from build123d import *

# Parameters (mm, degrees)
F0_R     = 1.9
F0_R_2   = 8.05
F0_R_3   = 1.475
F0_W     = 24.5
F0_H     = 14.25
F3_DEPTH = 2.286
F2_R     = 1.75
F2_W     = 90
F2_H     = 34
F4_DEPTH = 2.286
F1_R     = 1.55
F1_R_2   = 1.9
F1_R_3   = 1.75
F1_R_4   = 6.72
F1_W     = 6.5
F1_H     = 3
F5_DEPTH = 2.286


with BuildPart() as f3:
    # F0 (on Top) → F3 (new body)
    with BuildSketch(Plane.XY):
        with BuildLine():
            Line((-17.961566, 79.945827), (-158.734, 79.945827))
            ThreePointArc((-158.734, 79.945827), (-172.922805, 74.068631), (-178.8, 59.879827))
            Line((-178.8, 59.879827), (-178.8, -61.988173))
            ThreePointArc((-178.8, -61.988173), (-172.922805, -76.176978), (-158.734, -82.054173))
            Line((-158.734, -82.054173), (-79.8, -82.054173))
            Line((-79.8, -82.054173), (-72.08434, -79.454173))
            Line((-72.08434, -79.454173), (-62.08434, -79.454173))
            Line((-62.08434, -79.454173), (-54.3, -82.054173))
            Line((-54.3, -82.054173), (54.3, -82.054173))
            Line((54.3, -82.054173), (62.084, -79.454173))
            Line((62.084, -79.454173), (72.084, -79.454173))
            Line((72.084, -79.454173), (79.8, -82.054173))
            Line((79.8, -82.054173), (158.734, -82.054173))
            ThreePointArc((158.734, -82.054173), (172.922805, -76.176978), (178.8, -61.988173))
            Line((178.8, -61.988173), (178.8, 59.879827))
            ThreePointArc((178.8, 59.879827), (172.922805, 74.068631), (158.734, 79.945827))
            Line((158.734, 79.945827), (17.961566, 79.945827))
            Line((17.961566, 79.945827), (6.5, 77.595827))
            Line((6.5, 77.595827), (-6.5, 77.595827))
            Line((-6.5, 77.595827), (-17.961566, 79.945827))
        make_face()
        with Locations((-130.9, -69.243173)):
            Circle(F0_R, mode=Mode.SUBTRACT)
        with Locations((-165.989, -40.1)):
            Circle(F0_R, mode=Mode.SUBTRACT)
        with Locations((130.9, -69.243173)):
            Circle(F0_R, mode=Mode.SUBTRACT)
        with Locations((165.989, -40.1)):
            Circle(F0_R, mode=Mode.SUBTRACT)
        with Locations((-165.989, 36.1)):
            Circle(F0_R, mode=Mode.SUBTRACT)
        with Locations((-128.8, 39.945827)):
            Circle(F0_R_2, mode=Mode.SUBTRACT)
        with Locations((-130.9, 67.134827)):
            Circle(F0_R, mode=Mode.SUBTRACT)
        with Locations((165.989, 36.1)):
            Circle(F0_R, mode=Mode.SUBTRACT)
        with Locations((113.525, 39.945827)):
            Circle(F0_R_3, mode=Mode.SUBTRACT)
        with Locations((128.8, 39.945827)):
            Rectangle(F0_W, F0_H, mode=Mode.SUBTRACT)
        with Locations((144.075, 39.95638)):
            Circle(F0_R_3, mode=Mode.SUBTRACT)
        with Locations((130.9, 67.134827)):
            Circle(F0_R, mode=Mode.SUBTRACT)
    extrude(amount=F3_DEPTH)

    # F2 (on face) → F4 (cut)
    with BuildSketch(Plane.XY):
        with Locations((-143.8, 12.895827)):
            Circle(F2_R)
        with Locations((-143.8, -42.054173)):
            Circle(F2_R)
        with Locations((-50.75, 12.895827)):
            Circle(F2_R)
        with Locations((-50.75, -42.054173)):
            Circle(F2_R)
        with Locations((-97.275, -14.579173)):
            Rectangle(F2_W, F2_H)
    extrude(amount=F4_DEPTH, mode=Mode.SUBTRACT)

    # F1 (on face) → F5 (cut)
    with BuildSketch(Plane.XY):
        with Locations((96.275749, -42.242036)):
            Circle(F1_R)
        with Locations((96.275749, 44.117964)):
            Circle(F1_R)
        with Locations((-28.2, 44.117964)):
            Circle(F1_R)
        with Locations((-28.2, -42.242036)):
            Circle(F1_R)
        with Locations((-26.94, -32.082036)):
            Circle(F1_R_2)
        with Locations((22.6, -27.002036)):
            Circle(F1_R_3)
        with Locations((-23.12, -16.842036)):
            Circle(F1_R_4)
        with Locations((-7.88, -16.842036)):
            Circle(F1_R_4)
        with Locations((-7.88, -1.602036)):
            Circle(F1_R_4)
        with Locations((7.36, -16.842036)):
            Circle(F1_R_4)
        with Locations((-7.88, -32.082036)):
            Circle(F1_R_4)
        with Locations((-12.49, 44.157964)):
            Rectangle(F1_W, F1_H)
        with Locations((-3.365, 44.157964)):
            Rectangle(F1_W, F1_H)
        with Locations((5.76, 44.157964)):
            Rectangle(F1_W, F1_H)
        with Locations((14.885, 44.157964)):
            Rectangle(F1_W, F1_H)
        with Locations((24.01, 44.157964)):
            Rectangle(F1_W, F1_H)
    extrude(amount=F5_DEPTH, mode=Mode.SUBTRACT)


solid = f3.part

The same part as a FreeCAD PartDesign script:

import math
import FreeCAD as App
import Part
import Sketcher

V = App.Vector
Q = App.Units.Quantity


def add_polygon(sketch, points):
    """Adds a closed chain of lines whose ends are joined by coincident constraints."""
    first, n = sketch.GeometryCount, len(points)
    for a, b in zip(points, points[1:] + points[:1]):
        sketch.addGeometry(Part.LineSegment(App.Vector(*a, 0), App.Vector(*b, 0)), False)
    for i in range(n):
        sketch.addConstraint(Sketcher.Constraint("Coincident", first + i, 2, first + (i + 1) % n, 1))

doc = App.newDocument("Part")
body = doc.addObject("PartDesign::Body", "Body")

sketch1 = body.newObject("Sketcher::SketchObject", "Sketch")
sketch1.AttachmentSupport = (doc.getObject("XY_Plane"), [""])
sketch1.MapMode = "FlatFace"
sketch1.addGeometry(Part.LineSegment(V(-18, 79.9, 0), V(-158.7, 79.9, 0)), False)
sketch1.addGeometry(Part.ArcOfCircle(Part.Circle(V(-158.7, 59.9, 0), V(0, 0, 1), 20.1), math.radians(90), math.radians(180)), False)
sketch1.addGeometry(Part.LineSegment(V(-178.8, 59.9, 0), V(-178.8, -62, 0)), False)
sketch1.addGeometry(Part.ArcOfCircle(Part.Circle(V(-158.7, -62, 0), V(0, 0, 1), 20.1), math.radians(180), math.radians(270)), False)
sketch1.addGeometry(Part.LineSegment(V(-158.7, -82.1, 0), V(-79.8, -82.1, 0)), False)
sketch1.addGeometry(Part.LineSegment(V(-79.8, -82.1, 0), V(-72.1, -79.5, 0)), False)
sketch1.addGeometry(Part.LineSegment(V(-72.1, -79.5, 0), V(-62.1, -79.5, 0)), False)
sketch1.addGeometry(Part.LineSegment(V(-62.1, -79.5, 0), V(-54.3, -82.1, 0)), False)
sketch1.addGeometry(Part.LineSegment(V(-54.3, -82.1, 0), V(54.3, -82.1, 0)), False)
sketch1.addGeometry(Part.LineSegment(V(54.3, -82.1, 0), V(62.1, -79.5, 0)), False)
sketch1.addGeometry(Part.LineSegment(V(62.1, -79.5, 0), V(72.1, -79.5, 0)), False)
sketch1.addGeometry(Part.LineSegment(V(72.1, -79.5, 0), V(79.8, -82.1, 0)), False)
sketch1.addGeometry(Part.LineSegment(V(79.8, -82.1, 0), V(158.7, -82.1, 0)), False)
sketch1.addGeometry(Part.ArcOfCircle(Part.Circle(V(158.7, -62, 0), V(0, 0, 1), 20.1), math.radians(-90), math.radians(0)), False)
sketch1.addGeometry(Part.LineSegment(V(178.8, -62, 0), V(178.8, 59.9, 0)), False)
sketch1.addGeometry(Part.ArcOfCircle(Part.Circle(V(158.7, 59.9, 0), V(0, 0, 1), 20.1), math.radians(0), math.radians(90)), False)
sketch1.addGeometry(Part.LineSegment(V(158.7, 79.9, 0), V(18, 79.9, 0)), False)
sketch1.addGeometry(Part.LineSegment(V(18, 79.9, 0), V(6.5, 77.6, 0)), False)
sketch1.addGeometry(Part.LineSegment(V(6.5, 77.6, 0), V(-6.5, 77.6, 0)), False)
sketch1.addGeometry(Part.LineSegment(V(-6.5, 77.6, 0), V(-18, 79.9, 0)), False)
sketch1.addGeometry(Part.Circle(V(-130.9, -69.2, 0), V(0, 0, 1), 1.9), False)
sketch1.addGeometry(Part.Circle(V(-166, -40.1, 0), V(0, 0, 1), 1.9), False)
sketch1.addGeometry(Part.Circle(V(130.9, -69.2, 0), V(0, 0, 1), 1.9), False)
sketch1.addGeometry(Part.Circle(V(166, -40.1, 0), V(0, 0, 1), 1.9), False)
sketch1.addGeometry(Part.Circle(V(-166, 36.1, 0), V(0, 0, 1), 1.9), False)
sketch1.addGeometry(Part.Circle(V(-128.8, 39.9, 0), V(0, 0, 1), 8.1), False)
sketch1.addGeometry(Part.Circle(V(-130.9, 67.1, 0), V(0, 0, 1), 1.9), False)
sketch1.addGeometry(Part.Circle(V(113.5, 39.9, 0), V(0, 0, 1), 1.5), False)
add_polygon(sketch1, [(141.1, 32.8), (116.5, 32.8), (116.5, 47.1), (141.1, 47.1)])
sketch1.addGeometry(Part.Circle(V(144.1, 40, 0), V(0, 0, 1), 1.5), False)
sketch1.addGeometry(Part.Circle(V(166, 36.1, 0), V(0, 0, 1), 1.9), False)
sketch1.addGeometry(Part.Circle(V(130.9, 67.1, 0), V(0, 0, 1), 1.9), False)
sketch1.addConstraint([
    Sketcher.Constraint("Tangent", 0, 2, 1, 1),
    Sketcher.Constraint("Tangent", 1, 2, 2, 1),
    Sketcher.Constraint("Tangent", 2, 2, 3, 1),
    Sketcher.Constraint("Tangent", 3, 2, 4, 1),
    Sketcher.Constraint("Coincident", 4, 2, 5, 1),
    Sketcher.Constraint("Coincident", 5, 2, 6, 1),
    Sketcher.Constraint("Coincident", 6, 2, 7, 1),
    Sketcher.Constraint("Coincident", 7, 2, 8, 1),
    Sketcher.Constraint("Coincident", 8, 2, 9, 1),
    Sketcher.Constraint("Coincident", 9, 2, 10, 1),
    Sketcher.Constraint("Coincident", 10, 2, 11, 1),
    Sketcher.Constraint("Coincident", 11, 2, 12, 1),
    Sketcher.Constraint("Tangent", 12, 2, 13, 1),
    Sketcher.Constraint("Tangent", 13, 2, 14, 1),
    Sketcher.Constraint("Tangent", 14, 2, 15, 1),
    Sketcher.Constraint("Tangent", 15, 2, 16, 1),
    Sketcher.Constraint("Coincident", 16, 2, 17, 1),
    Sketcher.Constraint("Coincident", 17, 2, 18, 1),
    Sketcher.Constraint("Coincident", 18, 2, 19, 1),
    Sketcher.Constraint("Coincident", 19, 2, 0, 1),
    Sketcher.Constraint("Horizontal", 0),
    Sketcher.Constraint("Vertical", 2),
    Sketcher.Constraint("Horizontal", 4),
    Sketcher.Constraint("Horizontal", 6),
    Sketcher.Constraint("Horizontal", 8),
    Sketcher.Constraint("Horizontal", 10),
    Sketcher.Constraint("Horizontal", 12),
    Sketcher.Constraint("Vertical", 14),
    Sketcher.Constraint("Horizontal", 16),
    Sketcher.Constraint("Horizontal", 18),
    Sketcher.Constraint("Horizontal", 28),
    Sketcher.Constraint("Vertical", 29),
    Sketcher.Constraint("Horizontal", 30),
    Sketcher.Constraint("Vertical", 31),
    Sketcher.Constraint("Equal", 1, 3),
    Sketcher.Constraint("Equal", 3, 13),
    Sketcher.Constraint("Equal", 13, 15),
    Sketcher.Constraint("Equal", 20, 21),
    Sketcher.Constraint("Equal", 21, 22),
    Sketcher.Constraint("Equal", 22, 23),
    Sketcher.Constraint("Equal", 23, 24),
    Sketcher.Constraint("Equal", 24, 26),
    Sketcher.Constraint("Equal", 27, 32),
    Sketcher.Constraint("Equal", 26, 33),
    Sketcher.Constraint("Equal", 33, 34),
    Sketcher.Constraint("Symmetric", 3, 3, 13, 3, -2),
    Sketcher.Constraint("Symmetric", 20, 3, 22, 3, -2),
    Sketcher.Constraint("Symmetric", 21, 3, 23, 3, -2),
    Sketcher.Constraint("Symmetric", 24, 3, 33, 3, -2),
    Sketcher.Constraint("Symmetric", 26, 3, 34, 3, -2),
    Sketcher.Constraint("Symmetric", 16, 2, 19, 2, -2),
    Sketcher.Constraint("Horizontal", 25, 3, 27, 3),
    Sketcher.Constraint("Horizontal", 4, 2, 7, 2),
    Sketcher.Constraint("Horizontal", 6, 2, 9, 2),
    Sketcher.Constraint("Vertical", 21, 3, 24, 3),
    Sketcher.Constraint("Vertical", 20, 3, 26, 3),
    Sketcher.Constraint("Equal", 6, 10),
    Sketcher.Constraint("Equal", 4, 12),
    Sketcher.Constraint("Equal", 17, 19),
    Sketcher.Constraint("Diameter", 20, Q("3.8 mm")),
    Sketcher.Constraint("Diameter", 25, Q("16.1 mm")),
    Sketcher.Constraint("Diameter", 27, Q("2.95 mm")),
    Sketcher.Constraint("DistanceX", 6, 1, 6, 2, Q("10 mm")),
    Sketcher.Constraint("DistanceX", 18, 2, 18, 1, Q("13 mm")),
    Sketcher.Constraint("DistanceX", 8, 1, 8, 2, Q("108.6 mm")),
    Sketcher.Constraint("DistanceX", 28, 2, 28, 1, Q("24.5 mm")),
    Sketcher.Constraint("Radius", 1, Q("20.066001 mm")),
    Sketcher.Constraint("DistanceY", 25, 3, 0, 2, Q("40 mm")),
    Sketcher.Constraint("DistanceX", 1, 2, 25, 3, Q("50 mm")),
    Sketcher.Constraint("DistanceX", 2, 2, 4, 2, Q("99 mm")),
    Sketcher.Constraint("Distance", 17, Q("11.7 mm")),
    Sketcher.Constraint("DistanceY", 29, 1, 29, 2, Q("14.25 mm")),
    Sketcher.Constraint("DistanceX", 20, 3, -1, 1, Q("130.9 mm")),
    Sketcher.Constraint("DistanceY", 21, 3, -1, 1, Q("40.1 mm")),
    Sketcher.Constraint("DistanceY", -1, 1, 24, 3, Q("36.1 mm")),
    Sketcher.Constraint("DistanceX", 25, 3, -1, 1, Q("128.8 mm")),
    Sketcher.Constraint("DistanceX", 7, 2, -1, 1, Q("54.3 mm")),
    Sketcher.Constraint("DistanceY", 4, 2, 5, 2, Q("2.6 mm")),
    Sketcher.Constraint("DistanceY", 2, 2, 2, 1, Q("121.868 mm")),
    Sketcher.Constraint("DistanceX", -1, 1, 28, 2, Q("116.55 mm")),
    Sketcher.Constraint("DistanceX", 27, 3, 32, 3, Q("30.55 mm")),
    Sketcher.Constraint("DistanceX", 9, 2, 13, 3, Q("96.650001 mm")),
    Sketcher.Constraint("DistanceY", 17, 2, 16, 2, Q("2.35 mm")),
    Sketcher.Constraint("DistanceX", 21, 3, -1, 1, Q("165.989 mm")),
    Sketcher.Constraint("DistanceX", -1, 1, 27, 3, Q("113.525 mm")),
    Sketcher.Constraint("DistanceY", 20, 3, 3, 3, Q("7.254999 mm")),
    Sketcher.Constraint("DistanceY", 25, 3, 26, 3, Q("27.189 mm")),
    Sketcher.Constraint("DistanceY", 28, 2, 27, 3, Q("7.125 mm")),
    Sketcher.Constraint("DistanceY", -1, 1, 32, 3, Q("39.95638 mm")),
    Sketcher.Constraint("DistanceX", 5, 2, -1, 1, Q("72.08434 mm")),
    Sketcher.Constraint("DistanceY", -1, 1, 1, 3, Q("59.879826 mm")),
])
pad1 = body.newObject("PartDesign::Pad", "Pad")
pad1.Profile = sketch1
pad1.Length = 2.286

sketch2 = body.newObject("Sketcher::SketchObject", "Sketch001")
sketch2.AttachmentSupport = (doc.getObject("XY_Plane"), [""])
sketch2.MapMode = "FlatFace"
sketch2.addGeometry(Part.Circle(V(-143.8, 12.9, 0), V(0, 0, 1), 1.8), False)
sketch2.addGeometry(Part.Circle(V(-143.8, -42.1, 0), V(0, 0, 1), 1.8), False)
sketch2.addGeometry(Part.Circle(V(-50.8, 12.9, 0), V(0, 0, 1), 1.8), False)
sketch2.addGeometry(Part.Circle(V(-50.8, -42.1, 0), V(0, 0, 1), 1.8), False)
add_polygon(sketch2, [(-142.3, 2.4), (-142.3, -31.6), (-52.3, -31.6), (-52.3, 2.4)])
sketch2.addConstraint([
    Sketcher.Constraint("Vertical", 4),
    Sketcher.Constraint("Horizontal", 5),
    Sketcher.Constraint("Vertical", 6),
    Sketcher.Constraint("Horizontal", 7),
    Sketcher.Constraint("Equal", 0, 1),
    Sketcher.Constraint("Equal", 1, 2),
    Sketcher.Constraint("Equal", 2, 3),
    Sketcher.Constraint("Horizontal", 0, 3, 2, 3),
    Sketcher.Constraint("Horizontal", 1, 3, 3, 3),
    Sketcher.Constraint("Vertical", 0, 3, 1, 3),
    Sketcher.Constraint("Vertical", 2, 3, 3, 3),
    Sketcher.Constraint("Diameter", 0, Q("3.5 mm")),
    Sketcher.Constraint("DistanceX", 5, 1, 5, 2, Q("90 mm")),
    Sketcher.Constraint("DistanceY", 4, 2, 4, 1, Q("34 mm")),
    Sketcher.Constraint("DistanceX", 0, 3, -1, 1, Q("143.8 mm")),
    Sketcher.Constraint("DistanceX", 2, 3, -1, 1, Q("50.75 mm")),
    Sketcher.Constraint("DistanceY", 1, 3, 0, 3, Q("54.95 mm")),
    Sketcher.Constraint("DistanceX", 4, 2, -1, 1, Q("142.275 mm")),
    Sketcher.Constraint("DistanceY", 1, 3, 4, 2, Q("10.475 mm")),
    Sketcher.Constraint("DistanceY", -1, 1, 0, 3, Q("12.895827 mm")),
])
pocket1 = body.newObject("PartDesign::Pocket", "Pocket")
pocket1.Profile = sketch2
pocket1.Length = 2.286
pocket1.Reversed = True

sketch3 = body.newObject("Sketcher::SketchObject", "Sketch002")
sketch3.AttachmentSupport = (doc.getObject("XY_Plane"), [""])
sketch3.MapMode = "FlatFace"
sketch3.addGeometry(Part.Circle(V(96.3, -42.2, 0), V(0, 0, 1), 1.6), False)
sketch3.addGeometry(Part.Circle(V(96.3, 44.1, 0), V(0, 0, 1), 1.6), False)
sketch3.addGeometry(Part.Circle(V(-28.2, 44.1, 0), V(0, 0, 1), 1.6), False)
sketch3.addGeometry(Part.Circle(V(-28.2, -42.2, 0), V(0, 0, 1), 1.6), False)
sketch3.addGeometry(Part.Circle(V(-26.9, -32.1, 0), V(0, 0, 1), 1.9), False)
sketch3.addGeometry(Part.Circle(V(22.6, -27, 0), V(0, 0, 1), 1.8), False)
sketch3.addGeometry(Part.Circle(V(-23.1, -16.8, 0), V(0, 0, 1), 6.7), False)
sketch3.addGeometry(Part.Circle(V(-7.9, -16.8, 0), V(0, 0, 1), 6.7), False)
sketch3.addGeometry(Part.Circle(V(-7.9, -1.6, 0), V(0, 0, 1), 6.7), False)
sketch3.addGeometry(Part.Circle(V(7.4, -16.8, 0), V(0, 0, 1), 6.7), False)
sketch3.addGeometry(Part.Circle(V(-7.9, -32.1, 0), V(0, 0, 1), 6.7), False)
add_polygon(sketch3, [(-15.7, 45.7), (-15.7, 42.7), (-9.2, 42.7), (-9.2, 45.7)])
add_polygon(sketch3, [(-6.6, 45.7), (-6.6, 42.7), (-0.1, 42.7), (-0.1, 45.7)])
add_polygon(sketch3, [(2.5, 45.7), (2.5, 42.7), (9, 42.7), (9, 45.7)])
add_polygon(sketch3, [(11.6, 45.7), (11.6, 42.7), (18.1, 42.7), (18.1, 45.7)])
add_polygon(sketch3, [(20.8, 45.7), (20.8, 42.7), (27.3, 42.7), (27.3, 45.7)])
sketch3.addConstraint([
    Sketcher.Constraint("Vertical", 11),
    Sketcher.Constraint("Horizontal", 12),
    Sketcher.Constraint("Vertical", 13),
    Sketcher.Constraint("Horizontal", 14),
    Sketcher.Constraint("Vertical", 15),
    Sketcher.Constraint("Horizontal", 16),
    Sketcher.Constraint("Vertical", 17),
    Sketcher.Constraint("Horizontal", 18),
    Sketcher.Constraint("Vertical", 19),
    Sketcher.Constraint("Horizontal", 20),
    Sketcher.Constraint("Vertical", 21),
    Sketcher.Constraint("Horizontal", 22),
    Sketcher.Constraint("Vertical", 23),
    Sketcher.Constraint("Horizontal", 24),
    Sketcher.Constraint("Vertical", 25),
    Sketcher.Constraint("Horizontal", 26),
    Sketcher.Constraint("Vertical", 27),
    Sketcher.Constraint("Horizontal", 28),
    Sketcher.Constraint("Vertical", 29),
    Sketcher.Constraint("Horizontal", 30),
    Sketcher.Constraint("Equal", 0, 1),
    Sketcher.Constraint("Equal", 1, 2),
    Sketcher.Constraint("Equal", 2, 3),
    Sketcher.Constraint("Equal", 6, 7),
    Sketcher.Constraint("Equal", 7, 8),
    Sketcher.Constraint("Equal", 8, 9),
    Sketcher.Constraint("Equal", 9, 10),
    Sketcher.Constraint("Horizontal", 1, 3, 2, 3),
    Sketcher.Constraint("Horizontal", 0, 3, 3, 3),
    Sketcher.Constraint("Horizontal", 6, 3, 7, 3),
    Sketcher.Constraint("Horizontal", 7, 3, 9, 3),
    Sketcher.Constraint("Horizontal", 4, 3, 10, 3),
    Sketcher.Constraint("Horizontal", 12, 2, 15, 2),
    Sketcher.Constraint("Horizontal", 14, 2, 17, 2),
    Sketcher.Constraint("Horizontal", 16, 2, 19, 2),
    Sketcher.Constraint("Horizontal", 18, 2, 21, 2),
    Sketcher.Constraint("Horizontal", 20, 2, 23, 2),
    Sketcher.Constraint("Horizontal", 22, 2, 25, 2),
    Sketcher.Constraint("Horizontal", 24, 2, 27, 2),
    Sketcher.Constraint("Horizontal", 26, 2, 29, 2),
    Sketcher.Constraint("Vertical", 0, 3, 1, 3),
    Sketcher.Constraint("Vertical", 2, 3, 3, 3),
    Sketcher.Constraint("Vertical", 7, 3, 8, 3),
    Sketcher.Constraint("Vertical", 8, 3, 10, 3),
    Sketcher.Constraint("Equal", 14, 16),
    Sketcher.Constraint("Equal", 18, 20),
    Sketcher.Constraint("Equal", 22, 24),
    Sketcher.Constraint("Equal", 26, 28),
    Sketcher.Constraint("Diameter", 0, Q("3.1 mm")),
    Sketcher.Constraint("Diameter", 4, Q("3.8 mm")),
    Sketcher.Constraint("Diameter", 5, Q("3.5 mm")),
    Sketcher.Constraint("Diameter", 6, Q("13.44 mm")),
    Sketcher.Constraint("DistanceY", 11, 2, 11, 1, Q("3 mm")),
    Sketcher.Constraint("DistanceX", 12, 1, 12, 2, Q("6.5 mm")),
    Sketcher.Constraint("DistanceX", 2, 3, -1, 1, Q("28.2 mm")),
    Sketcher.Constraint("DistanceX", -1, 1, 5, 3, Q("22.6 mm")),
    Sketcher.Constraint("DistanceY", 4, 3, 2, 3, Q("76.2 mm")),
    Sketcher.Constraint("DistanceY", 3, 3, 6, 3, Q("25.4 mm")),
    Sketcher.Constraint("DistanceY", 5, 3, 8, 3, Q("25.4 mm")),
    Sketcher.Constraint("DistanceX", 4, 3, 9, 3, Q("34.3 mm")),
    Sketcher.Constraint("DistanceY", 6, 3, 11, 2, Q("59.5 mm")),
    Sketcher.Constraint("DistanceX", 11, 2, 9, 3, Q("23.1 mm")),
    Sketcher.Constraint("DistanceX", 4, 3, -1, 1, Q("26.94 mm")),
    Sketcher.Constraint("DistanceX", 6, 3, -1, 1, Q("23.12 mm")),
    Sketcher.Constraint("DistanceX", 7, 3, -1, 1, Q("7.88 mm")),
    Sketcher.Constraint("DistanceX", -1, 1, 19, 2, Q("2.51 mm")),
    Sketcher.Constraint("DistanceX", -1, 1, 27, 2, Q("20.76 mm")),
    Sketcher.Constraint("DistanceY", 0, 3, 1, 3, Q("86.36 mm")),
    Sketcher.Constraint("DistanceY", 4, 3, 5, 3, Q("5.08 mm")),
    Sketcher.Constraint("DistanceX", 16, 2, 23, 2, Q("11.75 mm")),
    Sketcher.Constraint("DistanceX", 15, 2, -1, 1, Q("6.615 mm")),
    Sketcher.Constraint("DistanceX", -1, 1, 0, 3, Q("96.275749 mm")),
    Sketcher.Constraint("DistanceY", 0, 3, -1, 1, Q("42.242036 mm")),
])
pocket2 = body.newObject("PartDesign::Pocket", "Pocket001")
pocket2.Profile = sketch3
pocket2.Length = 2.286
pocket2.Reversed = True

doc.recompute()
